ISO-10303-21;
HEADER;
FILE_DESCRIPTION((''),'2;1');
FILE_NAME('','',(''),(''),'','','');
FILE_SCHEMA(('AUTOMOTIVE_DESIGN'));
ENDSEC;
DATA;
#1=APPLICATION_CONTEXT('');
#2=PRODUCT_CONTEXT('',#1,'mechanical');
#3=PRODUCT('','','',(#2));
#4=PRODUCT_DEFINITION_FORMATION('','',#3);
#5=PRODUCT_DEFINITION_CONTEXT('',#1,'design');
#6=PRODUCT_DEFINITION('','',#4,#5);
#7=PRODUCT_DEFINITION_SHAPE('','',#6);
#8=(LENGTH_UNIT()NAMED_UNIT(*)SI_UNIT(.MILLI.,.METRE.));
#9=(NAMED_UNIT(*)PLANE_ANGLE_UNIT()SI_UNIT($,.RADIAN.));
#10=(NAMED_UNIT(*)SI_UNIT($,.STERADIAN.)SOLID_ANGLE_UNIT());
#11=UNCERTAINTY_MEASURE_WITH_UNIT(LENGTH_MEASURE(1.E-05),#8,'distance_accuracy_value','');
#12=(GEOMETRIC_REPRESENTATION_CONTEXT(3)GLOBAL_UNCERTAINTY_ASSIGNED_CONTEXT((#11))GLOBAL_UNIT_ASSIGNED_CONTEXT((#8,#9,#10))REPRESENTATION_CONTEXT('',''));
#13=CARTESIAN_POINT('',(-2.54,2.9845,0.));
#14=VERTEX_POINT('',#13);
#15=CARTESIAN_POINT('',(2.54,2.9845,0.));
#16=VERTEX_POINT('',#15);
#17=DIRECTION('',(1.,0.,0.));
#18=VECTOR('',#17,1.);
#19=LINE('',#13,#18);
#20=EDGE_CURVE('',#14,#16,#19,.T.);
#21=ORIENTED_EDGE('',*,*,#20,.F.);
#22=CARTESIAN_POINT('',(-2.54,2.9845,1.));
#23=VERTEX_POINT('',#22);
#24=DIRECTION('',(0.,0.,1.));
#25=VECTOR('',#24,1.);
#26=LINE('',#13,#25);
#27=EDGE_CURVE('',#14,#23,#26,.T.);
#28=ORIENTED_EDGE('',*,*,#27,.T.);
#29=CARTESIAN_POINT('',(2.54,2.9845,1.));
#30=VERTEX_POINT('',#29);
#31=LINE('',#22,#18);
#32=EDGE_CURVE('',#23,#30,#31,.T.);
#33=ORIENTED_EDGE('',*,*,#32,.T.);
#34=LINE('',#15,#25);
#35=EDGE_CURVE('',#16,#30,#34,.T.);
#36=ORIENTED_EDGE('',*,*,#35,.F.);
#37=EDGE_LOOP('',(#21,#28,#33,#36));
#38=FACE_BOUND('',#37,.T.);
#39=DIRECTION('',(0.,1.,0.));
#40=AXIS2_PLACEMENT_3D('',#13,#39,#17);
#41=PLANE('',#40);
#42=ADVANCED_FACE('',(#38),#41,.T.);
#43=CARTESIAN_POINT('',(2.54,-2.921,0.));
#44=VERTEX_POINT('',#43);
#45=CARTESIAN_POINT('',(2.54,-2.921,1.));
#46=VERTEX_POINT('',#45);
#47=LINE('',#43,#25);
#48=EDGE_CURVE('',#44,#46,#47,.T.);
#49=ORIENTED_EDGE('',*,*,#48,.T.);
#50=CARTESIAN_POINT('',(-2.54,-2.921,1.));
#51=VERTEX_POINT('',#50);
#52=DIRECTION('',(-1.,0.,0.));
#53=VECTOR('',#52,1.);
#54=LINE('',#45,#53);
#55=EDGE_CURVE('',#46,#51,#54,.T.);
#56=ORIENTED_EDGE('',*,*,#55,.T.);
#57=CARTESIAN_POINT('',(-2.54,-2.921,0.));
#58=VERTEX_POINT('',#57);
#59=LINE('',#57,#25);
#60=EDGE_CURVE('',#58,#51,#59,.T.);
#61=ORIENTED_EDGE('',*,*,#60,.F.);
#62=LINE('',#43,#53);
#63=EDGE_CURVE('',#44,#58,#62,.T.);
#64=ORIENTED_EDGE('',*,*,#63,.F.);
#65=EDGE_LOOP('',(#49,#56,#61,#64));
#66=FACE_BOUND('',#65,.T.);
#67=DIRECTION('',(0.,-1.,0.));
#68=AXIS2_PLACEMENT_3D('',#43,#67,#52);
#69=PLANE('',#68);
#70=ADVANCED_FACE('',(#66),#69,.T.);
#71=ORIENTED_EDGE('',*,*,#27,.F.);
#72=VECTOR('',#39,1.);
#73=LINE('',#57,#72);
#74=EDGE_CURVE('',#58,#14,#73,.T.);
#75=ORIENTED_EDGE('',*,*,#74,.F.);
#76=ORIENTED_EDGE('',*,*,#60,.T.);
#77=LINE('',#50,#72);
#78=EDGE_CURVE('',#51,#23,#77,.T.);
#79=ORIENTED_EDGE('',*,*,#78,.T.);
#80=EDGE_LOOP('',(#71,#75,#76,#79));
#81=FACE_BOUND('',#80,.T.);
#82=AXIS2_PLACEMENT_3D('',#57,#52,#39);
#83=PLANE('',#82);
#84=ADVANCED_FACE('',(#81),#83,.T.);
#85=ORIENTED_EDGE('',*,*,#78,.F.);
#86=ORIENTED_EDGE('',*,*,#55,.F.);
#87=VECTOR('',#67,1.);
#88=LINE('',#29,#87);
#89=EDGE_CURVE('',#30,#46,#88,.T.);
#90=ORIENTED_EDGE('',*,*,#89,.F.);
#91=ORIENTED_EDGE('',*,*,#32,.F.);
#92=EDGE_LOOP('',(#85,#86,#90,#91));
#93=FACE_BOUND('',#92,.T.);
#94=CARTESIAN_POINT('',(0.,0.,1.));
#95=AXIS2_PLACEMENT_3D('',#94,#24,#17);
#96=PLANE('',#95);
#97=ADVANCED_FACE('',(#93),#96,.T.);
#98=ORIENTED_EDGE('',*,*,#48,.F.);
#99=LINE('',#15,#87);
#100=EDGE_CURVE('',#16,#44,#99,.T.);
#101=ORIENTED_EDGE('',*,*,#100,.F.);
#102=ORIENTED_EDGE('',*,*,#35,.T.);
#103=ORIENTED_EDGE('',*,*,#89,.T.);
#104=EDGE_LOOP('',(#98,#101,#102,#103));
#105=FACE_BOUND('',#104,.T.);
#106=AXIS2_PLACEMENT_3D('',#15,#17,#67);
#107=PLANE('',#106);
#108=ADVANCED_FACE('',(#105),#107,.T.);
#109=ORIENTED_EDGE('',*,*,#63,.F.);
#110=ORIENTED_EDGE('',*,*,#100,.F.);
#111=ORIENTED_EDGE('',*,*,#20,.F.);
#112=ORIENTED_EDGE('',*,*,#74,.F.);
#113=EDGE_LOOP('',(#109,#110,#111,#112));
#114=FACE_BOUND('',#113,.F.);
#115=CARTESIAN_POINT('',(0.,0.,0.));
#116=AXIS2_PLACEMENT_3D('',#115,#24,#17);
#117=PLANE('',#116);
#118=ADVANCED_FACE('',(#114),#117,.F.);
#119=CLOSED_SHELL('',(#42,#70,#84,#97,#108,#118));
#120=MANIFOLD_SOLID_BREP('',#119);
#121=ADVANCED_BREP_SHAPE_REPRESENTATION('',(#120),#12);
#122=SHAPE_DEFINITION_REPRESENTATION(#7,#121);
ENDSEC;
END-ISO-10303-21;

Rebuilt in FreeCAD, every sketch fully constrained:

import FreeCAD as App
import Part
import Sketcher
from FreeCAD import Vector

doc = App.newDocument("Part")
params = doc.addObject("Spreadsheet::Sheet", "Params")
for row, (alias, value) in enumerate([
    ("sketch1_width", "5.08 mm"),
    ("pad1_length", "1 mm"),
], start=1):
    params.set(f"A{row}", alias)
    params.set(f"B{row}", "=" + value)
    params.setAlias(f"B{row}", alias)

body = doc.addObject("PartDesign::Body", "Body")

sketch1 = doc.addObject("Sketcher::SketchObject", "Sketch")
body.addObject(sketch1)
sketch1.AttachmentSupport = (doc.XY_Plane, [""])
sketch1.MapMode = "FlatFace"
sketch1.addGeometry(Part.LineSegment(Vector(3, 3, 0), Vector(-3, 3, 0)), False)
sketch1.addGeometry(Part.LineSegment(Vector(-3, 3, 0), Vector(-3, -3, 0)), False)
sketch1.addGeometry(Part.LineSegment(Vector(-3, -3, 0), Vector(3, -3, 0)), False)
sketch1.addGeometry(Part.LineSegment(Vector(3, -3, 0), Vector(3, 3, 0)), False)
sketch1.addConstraint(Sketcher.Constraint("Coincident", 0, 2, 1, 1))
sketch1.addConstraint(Sketcher.Constraint("Coincident", 1, 2, 2, 1))
sketch1.addConstraint(Sketcher.Constraint("Coincident", 2, 2, 3, 1))
sketch1.addConstraint(Sketcher.Constraint("Coincident", 3, 2, 0, 1))
sketch1.addConstraint(Sketcher.Constraint("Horizontal", 0))
sketch1.addConstraint(Sketcher.Constraint("Vertical", 1))
sketch1.addConstraint(Sketcher.Constraint("Horizontal", 2))
sketch1.addConstraint(Sketcher.Constraint("Vertical", 3))
sketch1.addConstraint(Sketcher.Constraint("DistanceX", 0, 2, 0, 1, 5.08))
sketch1.addConstraint(Sketcher.Constraint("DistanceX", 0, 2, -1, 1, 2.54))
sketch1.addConstraint(Sketcher.Constraint("DistanceY", 1, 2, 1, 1, 5.9055))
sketch1.addConstraint(Sketcher.Constraint("DistanceY", 1, 2, -1, 1, 2.921))
sketch1.setExpression("Constraints[8]", "Params.sketch1_width")
pad1 = doc.addObject("PartDesign::Pad", "Pad")
body.addObject(pad1)
pad1.Profile = sketch1
pad1.setExpression("Length", "Params.pad1_length")

doc.recompute()
